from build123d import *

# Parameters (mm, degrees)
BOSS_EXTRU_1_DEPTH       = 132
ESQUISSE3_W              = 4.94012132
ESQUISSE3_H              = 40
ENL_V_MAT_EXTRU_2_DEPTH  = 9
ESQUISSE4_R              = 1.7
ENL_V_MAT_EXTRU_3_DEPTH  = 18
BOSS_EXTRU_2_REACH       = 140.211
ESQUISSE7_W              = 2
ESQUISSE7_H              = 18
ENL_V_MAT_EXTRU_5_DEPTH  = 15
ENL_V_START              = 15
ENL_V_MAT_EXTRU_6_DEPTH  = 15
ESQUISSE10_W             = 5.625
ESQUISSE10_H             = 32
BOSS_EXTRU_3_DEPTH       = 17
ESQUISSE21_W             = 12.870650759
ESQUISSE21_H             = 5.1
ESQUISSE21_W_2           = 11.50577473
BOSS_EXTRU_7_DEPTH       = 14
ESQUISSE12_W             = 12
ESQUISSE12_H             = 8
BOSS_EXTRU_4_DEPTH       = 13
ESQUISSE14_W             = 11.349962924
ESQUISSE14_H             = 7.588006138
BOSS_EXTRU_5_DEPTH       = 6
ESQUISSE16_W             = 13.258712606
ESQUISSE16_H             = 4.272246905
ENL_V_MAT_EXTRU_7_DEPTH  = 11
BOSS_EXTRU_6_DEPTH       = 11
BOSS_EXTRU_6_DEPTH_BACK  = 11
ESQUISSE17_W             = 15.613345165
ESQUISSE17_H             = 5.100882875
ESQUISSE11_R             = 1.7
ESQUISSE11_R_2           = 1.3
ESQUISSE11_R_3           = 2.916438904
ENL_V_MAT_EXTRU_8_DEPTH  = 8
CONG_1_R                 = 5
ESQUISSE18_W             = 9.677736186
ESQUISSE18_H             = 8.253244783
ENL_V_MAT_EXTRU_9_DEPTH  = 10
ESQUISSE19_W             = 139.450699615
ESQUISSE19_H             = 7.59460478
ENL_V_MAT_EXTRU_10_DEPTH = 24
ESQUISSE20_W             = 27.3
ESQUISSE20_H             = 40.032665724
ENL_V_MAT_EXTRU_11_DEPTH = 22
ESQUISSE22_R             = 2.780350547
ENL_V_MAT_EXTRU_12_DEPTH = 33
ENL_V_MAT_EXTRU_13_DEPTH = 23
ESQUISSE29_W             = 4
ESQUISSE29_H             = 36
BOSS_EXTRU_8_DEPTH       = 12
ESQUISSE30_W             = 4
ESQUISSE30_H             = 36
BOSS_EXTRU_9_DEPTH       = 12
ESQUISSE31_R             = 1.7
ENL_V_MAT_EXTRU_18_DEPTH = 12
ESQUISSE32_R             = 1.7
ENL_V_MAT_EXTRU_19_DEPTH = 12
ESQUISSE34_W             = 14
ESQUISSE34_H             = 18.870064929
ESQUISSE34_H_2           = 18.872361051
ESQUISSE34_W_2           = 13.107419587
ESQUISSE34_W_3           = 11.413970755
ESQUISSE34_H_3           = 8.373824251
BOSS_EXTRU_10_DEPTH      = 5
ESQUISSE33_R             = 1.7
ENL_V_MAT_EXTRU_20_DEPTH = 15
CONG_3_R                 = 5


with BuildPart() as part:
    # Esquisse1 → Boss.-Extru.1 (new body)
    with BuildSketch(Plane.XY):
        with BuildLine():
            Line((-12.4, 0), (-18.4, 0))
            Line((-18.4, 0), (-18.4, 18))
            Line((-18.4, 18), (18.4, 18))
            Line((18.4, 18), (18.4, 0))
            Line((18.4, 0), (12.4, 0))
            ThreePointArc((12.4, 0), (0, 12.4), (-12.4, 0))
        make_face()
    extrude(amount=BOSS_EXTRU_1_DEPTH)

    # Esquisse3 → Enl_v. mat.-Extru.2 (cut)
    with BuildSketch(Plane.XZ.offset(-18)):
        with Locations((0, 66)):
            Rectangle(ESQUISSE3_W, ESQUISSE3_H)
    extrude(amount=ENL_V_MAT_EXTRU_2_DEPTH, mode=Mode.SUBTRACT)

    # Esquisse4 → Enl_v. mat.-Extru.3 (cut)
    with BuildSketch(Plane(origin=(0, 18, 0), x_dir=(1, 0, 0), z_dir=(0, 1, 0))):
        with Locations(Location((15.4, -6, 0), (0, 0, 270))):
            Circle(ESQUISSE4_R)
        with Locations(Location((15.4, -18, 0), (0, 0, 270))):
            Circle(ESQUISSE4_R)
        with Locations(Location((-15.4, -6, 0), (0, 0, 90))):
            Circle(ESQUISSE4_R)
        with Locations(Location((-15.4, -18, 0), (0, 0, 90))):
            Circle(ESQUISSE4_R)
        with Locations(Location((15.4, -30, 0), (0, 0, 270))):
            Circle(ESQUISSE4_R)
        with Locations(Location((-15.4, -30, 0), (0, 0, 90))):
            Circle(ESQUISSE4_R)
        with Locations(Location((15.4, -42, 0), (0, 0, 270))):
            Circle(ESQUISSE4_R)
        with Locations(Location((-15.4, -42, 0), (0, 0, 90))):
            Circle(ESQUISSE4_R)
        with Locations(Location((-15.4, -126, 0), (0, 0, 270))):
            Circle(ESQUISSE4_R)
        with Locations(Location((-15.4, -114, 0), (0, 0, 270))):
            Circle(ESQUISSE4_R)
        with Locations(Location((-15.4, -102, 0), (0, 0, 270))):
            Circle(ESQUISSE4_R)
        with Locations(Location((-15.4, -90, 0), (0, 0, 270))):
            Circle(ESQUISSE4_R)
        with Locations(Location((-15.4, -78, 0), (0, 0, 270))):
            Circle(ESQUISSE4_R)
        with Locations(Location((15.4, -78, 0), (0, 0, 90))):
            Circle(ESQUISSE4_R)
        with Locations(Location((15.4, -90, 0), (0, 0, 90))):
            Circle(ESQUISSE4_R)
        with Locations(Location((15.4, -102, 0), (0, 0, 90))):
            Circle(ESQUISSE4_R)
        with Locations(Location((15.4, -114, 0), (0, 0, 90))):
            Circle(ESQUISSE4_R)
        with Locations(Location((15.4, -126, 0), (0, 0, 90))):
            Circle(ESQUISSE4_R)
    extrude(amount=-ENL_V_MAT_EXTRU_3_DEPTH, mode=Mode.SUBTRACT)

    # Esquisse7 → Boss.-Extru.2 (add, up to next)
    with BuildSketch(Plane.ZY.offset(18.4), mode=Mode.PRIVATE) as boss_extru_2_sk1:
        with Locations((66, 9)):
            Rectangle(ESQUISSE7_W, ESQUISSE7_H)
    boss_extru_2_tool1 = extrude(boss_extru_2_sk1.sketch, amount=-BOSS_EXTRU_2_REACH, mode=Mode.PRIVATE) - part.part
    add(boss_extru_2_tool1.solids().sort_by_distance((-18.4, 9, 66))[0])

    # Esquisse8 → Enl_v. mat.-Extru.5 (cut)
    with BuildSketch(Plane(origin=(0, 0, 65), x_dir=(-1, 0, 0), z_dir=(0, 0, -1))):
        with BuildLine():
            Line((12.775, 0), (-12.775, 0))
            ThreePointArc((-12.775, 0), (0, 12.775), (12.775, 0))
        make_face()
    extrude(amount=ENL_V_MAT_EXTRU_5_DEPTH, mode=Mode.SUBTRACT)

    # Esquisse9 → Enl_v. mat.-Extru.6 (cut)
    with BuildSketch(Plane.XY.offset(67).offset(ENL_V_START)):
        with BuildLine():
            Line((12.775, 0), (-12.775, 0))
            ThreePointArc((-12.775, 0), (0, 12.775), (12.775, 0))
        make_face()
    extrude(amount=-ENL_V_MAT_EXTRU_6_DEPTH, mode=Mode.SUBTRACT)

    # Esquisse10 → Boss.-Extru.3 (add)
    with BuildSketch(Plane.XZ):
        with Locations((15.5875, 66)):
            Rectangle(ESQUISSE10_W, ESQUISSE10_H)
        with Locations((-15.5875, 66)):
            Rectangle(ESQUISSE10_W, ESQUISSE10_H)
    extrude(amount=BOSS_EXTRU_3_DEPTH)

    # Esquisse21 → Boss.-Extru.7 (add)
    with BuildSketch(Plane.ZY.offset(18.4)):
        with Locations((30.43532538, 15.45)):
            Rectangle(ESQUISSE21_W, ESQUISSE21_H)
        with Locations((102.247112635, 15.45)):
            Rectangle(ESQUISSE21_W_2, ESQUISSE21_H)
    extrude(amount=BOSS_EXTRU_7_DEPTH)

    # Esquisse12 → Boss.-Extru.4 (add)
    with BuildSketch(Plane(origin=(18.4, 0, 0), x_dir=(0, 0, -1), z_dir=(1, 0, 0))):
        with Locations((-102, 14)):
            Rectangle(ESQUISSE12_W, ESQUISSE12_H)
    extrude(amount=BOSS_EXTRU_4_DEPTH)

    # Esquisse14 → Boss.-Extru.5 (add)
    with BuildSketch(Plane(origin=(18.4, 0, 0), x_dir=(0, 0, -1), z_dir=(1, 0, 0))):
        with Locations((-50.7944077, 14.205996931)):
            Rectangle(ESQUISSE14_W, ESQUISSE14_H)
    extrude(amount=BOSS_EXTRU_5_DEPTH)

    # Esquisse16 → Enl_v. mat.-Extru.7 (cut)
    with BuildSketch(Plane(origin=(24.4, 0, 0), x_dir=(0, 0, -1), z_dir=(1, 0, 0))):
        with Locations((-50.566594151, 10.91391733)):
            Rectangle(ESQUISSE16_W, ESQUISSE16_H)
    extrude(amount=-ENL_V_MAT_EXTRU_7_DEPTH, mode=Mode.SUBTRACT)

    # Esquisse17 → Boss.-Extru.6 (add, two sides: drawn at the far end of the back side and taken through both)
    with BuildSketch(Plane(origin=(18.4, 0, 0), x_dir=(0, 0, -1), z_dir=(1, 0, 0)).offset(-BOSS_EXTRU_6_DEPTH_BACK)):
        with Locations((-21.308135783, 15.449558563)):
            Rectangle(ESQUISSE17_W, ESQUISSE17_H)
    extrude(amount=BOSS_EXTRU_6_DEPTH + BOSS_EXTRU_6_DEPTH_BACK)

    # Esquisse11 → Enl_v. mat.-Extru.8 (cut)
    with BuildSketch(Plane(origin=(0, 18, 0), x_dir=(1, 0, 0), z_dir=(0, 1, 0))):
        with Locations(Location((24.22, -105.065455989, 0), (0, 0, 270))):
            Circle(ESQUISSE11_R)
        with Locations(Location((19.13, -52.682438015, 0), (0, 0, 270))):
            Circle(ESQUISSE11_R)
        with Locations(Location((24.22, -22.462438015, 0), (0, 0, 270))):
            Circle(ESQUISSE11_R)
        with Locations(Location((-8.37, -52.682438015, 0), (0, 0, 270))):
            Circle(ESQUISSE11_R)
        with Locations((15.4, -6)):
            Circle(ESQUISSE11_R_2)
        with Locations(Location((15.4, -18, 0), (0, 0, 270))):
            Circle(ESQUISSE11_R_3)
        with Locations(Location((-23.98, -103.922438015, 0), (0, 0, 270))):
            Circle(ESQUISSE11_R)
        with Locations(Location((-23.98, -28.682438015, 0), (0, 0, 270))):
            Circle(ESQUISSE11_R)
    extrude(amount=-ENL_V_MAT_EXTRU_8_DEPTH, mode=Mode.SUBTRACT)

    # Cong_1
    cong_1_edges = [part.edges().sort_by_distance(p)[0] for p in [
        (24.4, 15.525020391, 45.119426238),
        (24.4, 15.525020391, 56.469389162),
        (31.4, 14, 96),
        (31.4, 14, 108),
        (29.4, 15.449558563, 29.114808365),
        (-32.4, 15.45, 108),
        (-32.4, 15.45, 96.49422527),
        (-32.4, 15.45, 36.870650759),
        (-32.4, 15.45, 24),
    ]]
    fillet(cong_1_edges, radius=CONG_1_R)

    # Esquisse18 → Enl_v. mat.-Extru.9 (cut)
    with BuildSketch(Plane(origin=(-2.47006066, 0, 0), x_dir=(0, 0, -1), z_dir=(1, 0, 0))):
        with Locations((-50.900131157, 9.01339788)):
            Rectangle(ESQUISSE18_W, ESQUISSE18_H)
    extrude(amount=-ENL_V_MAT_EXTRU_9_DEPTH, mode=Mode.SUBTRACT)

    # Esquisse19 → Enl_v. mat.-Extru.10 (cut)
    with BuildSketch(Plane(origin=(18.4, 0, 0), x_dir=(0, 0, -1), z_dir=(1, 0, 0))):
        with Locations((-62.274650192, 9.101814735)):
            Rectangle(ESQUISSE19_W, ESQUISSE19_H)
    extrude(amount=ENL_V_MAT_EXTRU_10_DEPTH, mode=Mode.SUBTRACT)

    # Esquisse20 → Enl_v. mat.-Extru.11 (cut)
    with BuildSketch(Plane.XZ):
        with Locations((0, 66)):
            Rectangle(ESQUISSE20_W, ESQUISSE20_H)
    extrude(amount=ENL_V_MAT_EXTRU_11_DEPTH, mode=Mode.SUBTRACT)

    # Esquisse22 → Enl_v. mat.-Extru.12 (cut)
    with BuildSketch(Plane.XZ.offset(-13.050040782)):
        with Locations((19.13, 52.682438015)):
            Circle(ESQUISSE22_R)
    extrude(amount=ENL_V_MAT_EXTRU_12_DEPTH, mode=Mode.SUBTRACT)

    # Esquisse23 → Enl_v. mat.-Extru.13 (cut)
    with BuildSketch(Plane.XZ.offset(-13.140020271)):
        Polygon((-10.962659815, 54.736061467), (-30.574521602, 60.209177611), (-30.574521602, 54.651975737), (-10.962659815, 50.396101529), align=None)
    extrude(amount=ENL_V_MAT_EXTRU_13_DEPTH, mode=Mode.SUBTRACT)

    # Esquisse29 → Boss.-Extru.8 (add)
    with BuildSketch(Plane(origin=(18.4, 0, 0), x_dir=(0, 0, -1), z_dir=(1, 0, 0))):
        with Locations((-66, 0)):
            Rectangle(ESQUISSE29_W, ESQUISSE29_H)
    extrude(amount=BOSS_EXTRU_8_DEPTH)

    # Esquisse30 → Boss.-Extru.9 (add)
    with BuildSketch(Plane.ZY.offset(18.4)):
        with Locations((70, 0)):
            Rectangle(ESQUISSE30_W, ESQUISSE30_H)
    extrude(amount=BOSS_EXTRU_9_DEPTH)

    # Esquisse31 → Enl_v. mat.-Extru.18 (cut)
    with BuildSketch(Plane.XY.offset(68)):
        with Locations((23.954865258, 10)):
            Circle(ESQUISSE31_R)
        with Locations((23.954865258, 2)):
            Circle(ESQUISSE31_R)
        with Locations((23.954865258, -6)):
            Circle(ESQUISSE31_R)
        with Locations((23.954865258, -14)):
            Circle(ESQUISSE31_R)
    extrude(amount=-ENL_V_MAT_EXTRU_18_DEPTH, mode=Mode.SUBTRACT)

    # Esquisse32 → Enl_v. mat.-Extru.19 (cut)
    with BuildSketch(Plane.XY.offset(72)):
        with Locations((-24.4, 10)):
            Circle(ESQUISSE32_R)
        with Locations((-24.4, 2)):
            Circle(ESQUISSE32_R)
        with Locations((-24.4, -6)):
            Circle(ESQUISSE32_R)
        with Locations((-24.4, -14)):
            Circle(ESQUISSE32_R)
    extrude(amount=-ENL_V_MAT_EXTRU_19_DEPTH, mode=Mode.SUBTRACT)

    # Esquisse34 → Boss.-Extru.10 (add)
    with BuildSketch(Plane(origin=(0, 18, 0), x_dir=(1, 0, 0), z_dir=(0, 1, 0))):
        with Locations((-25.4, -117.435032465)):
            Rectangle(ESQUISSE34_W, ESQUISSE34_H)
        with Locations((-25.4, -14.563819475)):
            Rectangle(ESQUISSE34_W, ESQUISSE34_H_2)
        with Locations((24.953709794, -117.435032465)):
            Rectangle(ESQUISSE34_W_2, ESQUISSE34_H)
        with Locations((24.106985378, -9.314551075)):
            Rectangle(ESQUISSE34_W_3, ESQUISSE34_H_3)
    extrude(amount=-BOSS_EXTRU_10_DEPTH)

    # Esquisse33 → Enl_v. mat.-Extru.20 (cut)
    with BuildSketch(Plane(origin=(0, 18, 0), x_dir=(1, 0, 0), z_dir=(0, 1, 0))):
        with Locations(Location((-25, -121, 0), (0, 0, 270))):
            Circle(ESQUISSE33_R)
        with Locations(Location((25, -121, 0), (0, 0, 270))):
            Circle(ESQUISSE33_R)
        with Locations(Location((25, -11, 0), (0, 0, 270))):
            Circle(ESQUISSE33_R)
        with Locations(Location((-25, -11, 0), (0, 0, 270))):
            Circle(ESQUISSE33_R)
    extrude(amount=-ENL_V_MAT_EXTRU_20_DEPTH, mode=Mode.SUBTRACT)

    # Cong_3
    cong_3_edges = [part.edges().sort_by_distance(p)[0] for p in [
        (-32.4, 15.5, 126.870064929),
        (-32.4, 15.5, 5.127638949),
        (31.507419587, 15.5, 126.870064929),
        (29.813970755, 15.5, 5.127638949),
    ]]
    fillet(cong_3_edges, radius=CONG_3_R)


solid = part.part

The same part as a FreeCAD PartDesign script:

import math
import FreeCAD as App
import Part
import Sketcher
Q = App.Units.Quantity


def edges_at(feature, points):
    """Names of the edges that pass closest to the given points."""
    edges = feature.Shape.Edges
    near = lambda p: min(range(len(edges)), key=lambda i: edges[i].distToShape(Part.Vertex(*p))[0])
    return sorted({f"Edge{near(p) + 1}" for p in points})

doc = App.newDocument("Part")
body = doc.addObject("PartDesign::Body", "Body")

# Sketch on XY plane
sketch1 = body.newObject("Sketcher::SketchObject", "Sketch")
sketch1.AttachmentSupport = (doc.getObject("XY_Plane"), [""])
sketch1.MapMode = "FlatFace"
sketch1.addGeometry([
    Part.LineSegment(App.Vector(-18, 0, 0), App.Vector(-12, 0, 0)),  # 0
    Part.ArcOfCircle(Part.Circle(App.Vector(0, 0, 0), App.Vector(0, 0, 1), 12), math.radians(0), math.radians(180)),  # 1
    Part.LineSegment(App.Vector(12, 0, 0), App.Vector(18, 0, 0)),  # 2
    Part.LineSegment(App.Vector(18, 0, 0), App.Vector(18, 18, 0)),  # 3
    Part.LineSegment(App.Vector(18, 18, 0), App.Vector(-18, 18, 0)),  # 4
    Part.LineSegment(App.Vector(-18, 18, 0), App.Vector(-18, 0, 0)),  # 5
], False)
sketch1.addConstraint([
    Sketcher.Constraint("Coincident", 0, 2, 1, 2),
    Sketcher.Constraint("Coincident", 1, 1, 2, 1),
    Sketcher.Constraint("Coincident", 2, 2, 3, 1),
    Sketcher.Constraint("Coincident", 3, 2, 4, 1),
    Sketcher.Constraint("Coincident", 4, 2, 5, 1),
    Sketcher.Constraint("Coincident", 5, 2, 0, 1),
    Sketcher.Constraint("Horizontal", 0),
    Sketcher.Constraint("Horizontal", 2),
    Sketcher.Constraint("Vertical", 3),
    Sketcher.Constraint("Horizontal", 4),
    Sketcher.Constraint("Vertical", 5),
    Sketcher.Constraint("Coincident", 1, 3, -1, 1),
    Sketcher.Constraint("Symmetric", 2, 2, 5, 2, -1, 1),
    Sketcher.Constraint("PointOnObject", 0, 2, -1),
    Sketcher.Constraint("Radius", 1, Q("12.4 mm")),
    Sketcher.Constraint("DistanceX", 0, 1, 0, 2, Q("6 mm")),
    Sketcher.Constraint("DistanceY", 3, 1, 3, 2, Q("18 mm")),
])
pad1 = body.newObject("PartDesign::Pad", "Pad")
pad1.Profile = sketch1
pad1.Length = 132

# Sketch on XZ plane
sketch2 = body.newObject("Sketcher::SketchObject", "Sketch001")
sketch2.AttachmentSupport = (doc.getObject("XZ_Plane"), [""])
sketch2.MapMode = "FlatFace"
sketch2.AttachmentOffset = App.Placement(App.Vector(0, 0, -18), App.Rotation())
sketch2.addGeometry([
    Part.LineSegment(App.Vector(-2.5, 86, 0), App.Vector(-2.5, 46, 0)),
    Part.LineSegment(App.Vector(-2.5, 46, 0), App.Vector(2.5, 46, 0)),
    Part.LineSegment(App.Vector(2.5, 46, 0), App.Vector(2.5, 86, 0)),
    Part.LineSegment(App.Vector(2.5, 86, 0), App.Vector(-2.5, 86, 0)),
], False)
sketch2.addConstraint([
    Sketcher.Constraint("Coincident", 0, 2, 1, 1),
    Sketcher.Constraint("Coincident", 1, 2, 2, 1),
    Sketcher.Constraint("Coincident", 2, 2, 3, 1),
    Sketcher.Constraint("Coincident", 3, 2, 0, 1),
    Sketcher.Constraint("Vertical", 0),
    Sketcher.Constraint("Horizontal", 1),
    Sketcher.Constraint("Vertical", 2),
    Sketcher.Constraint("Horizontal", 3),
    Sketcher.Constraint("DistanceY", 0, 2, 0, 1, Q("40 mm")),
    Sketcher.Constraint("DistanceY", -1, 1, 0, 2, Q("46 mm")),
    Sketcher.Constraint("DistanceX", 1, 1, 1, 2, Q("4.940121 mm")),
    Sketcher.Constraint("DistanceX", 0, 2, -1, 1, Q("2.470061 mm")),
])
pocket1 = body.newObject("PartDesign::Pocket", "Pocket")
pocket1.Profile = sketch2
pocket1.Length = 9
pocket1.Reversed = True

# Sketch on XZ plane
sketch3 = body.newObject("Sketcher::SketchObject", "Sketch002")
sketch3.AttachmentSupport = (doc.getObject("XZ_Plane"), [""])
sketch3.MapMode = "FlatFace"
sketch3.AttachmentOffset = App.Placement(App.Vector(0, 0, -18), App.Rotation())
sketch3.addGeometry([
    Part.Circle(App.Vector(15.4, 6, 0), App.Vector(0, 0, 1), 1.7),  # 0
    Part.Circle(App.Vector(15.4, 18, 0), App.Vector(0, 0, 1), 1.7),  # 1
    Part.Circle(App.Vector(-15.4, 6, 0), App.Vector(0, 0, 1), 1.7),  # 2
    Part.Circle(App.Vector(-15.4, 18, 0), App.Vector(0, 0, 1), 1.7),  # 3
    Part.Circle(App.Vector(15.4, 30, 0), App.Vector(0, 0, 1), 1.7),  # 4
    Part.Circle(App.Vector(-15.4, 30, 0), App.Vector(0, 0, 1), 1.7),  # 5
    Part.Circle(App.Vector(15.4, 42, 0), App.Vector(0, 0, 1), 1.7),  # 6
    Part.Circle(App.Vector(-15.4, 42, 0), App.Vector(0, 0, 1), 1.7),  # 7
    Part.Circle(App.Vector(-15.4, 126, 0), App.Vector(0, 0, 1), 1.7),  # 8
    Part.Circle(App.Vector(-15.4, 114, 0), App.Vector(0, 0, 1), 1.7),  # 9
    Part.Circle(App.Vector(-15.4, 102, 0), App.Vector(0, 0, 1), 1.7),  # 10
    Part.Circle(App.Vector(-15.4, 90, 0), App.Vector(0, 0, 1), 1.7),  # 11
    Part.Circle(App.Vector(-15.4, 78, 0), App.Vector(0, 0, 1), 1.7),  # 12
    Part.Circle(App.Vector(15.4, 78, 0), App.Vector(0, 0, 1), 1.7),  # 13
    Part.Circle(App.Vector(15.4, 90, 0), App.Vector(0, 0, 1), 1.7),  # 14
    Part.Circle(App.Vector(15.4, 102, 0), App.Vector(0, 0, 1), 1.7),  # 15
    Part.Circle(App.Vector(15.4, 114, 0), App.Vector(0, 0, 1), 1.7),  # 16
    Part.Circle(App.Vector(15.4, 126, 0), App.Vector(0, 0, 1), 1.7),  # 17
], False)
sketch3.addConstraint([
    Sketcher.Constraint("Equal", 0, 1),
    Sketcher.Constraint("Equal", 1, 2),
    Sketcher.Constraint("Equal", 2, 3),
    Sketcher.Constraint("Equal", 3, 4),
    Sketcher.Constraint("Equal", 4, 5),
    Sketcher.Constraint("Equal", 5, 6),
    Sketcher.Constraint("Equal", 6, 7),
    Sketcher.Constraint("Equal", 7, 8),
    Sketcher.Constraint("Equal", 8, 9),
    Sketcher.Constraint("Equal", 9, 10),
    Sketcher.Constraint("Equal", 10, 11),
    Sketcher.Constraint("Equal", 11, 12),
    Sketcher.Constraint("Equal", 12, 13),
    Sketcher.Constraint("Equal", 13, 14),
    Sketcher.Constraint("Equal", 14, 15),
    Sketcher.Constraint("Equal", 15, 16),
    Sketcher.Constraint("Equal", 16, 17),
    Sketcher.Constraint("Symmetric", 0, 3, 2, 3, -2),
    Sketcher.Constraint("Symmetric", 1, 3, 3, 3, -2),
    Sketcher.Constraint("Symmetric", 4, 3, 5, 3, -2),
    Sketcher.Constraint("Symmetric", 6, 3, 7, 3, -2),
    Sketcher.Constraint("Symmetric", 12, 3, 13, 3, -2),
    Sketcher.Constraint("Symmetric", 11, 3, 14, 3, -2),
    Sketcher.Constraint("Symmetric", 10, 3, 15, 3, -2),
    Sketcher.Constraint("Symmetric", 9, 3, 16, 3, -2),
    Sketcher.Constraint("Symmetric", 8, 3, 17, 3, -2),
    Sketcher.Constraint("Vertical", 0, 3, 1, 3),
    Sketcher.Constraint("Vertical", 1, 3, 4, 3),
    Sketcher.Constraint("Vertical", 4, 3, 6, 3),
    Sketcher.Constraint("Vertical", 7, 3, 8, 3),
    Sketcher.Constraint("Vertical", 8, 3, 9, 3),
    Sketcher.Constraint("Vertical", 9, 3, 10, 3),
    Sketcher.Constraint("Vertical", 10, 3, 11, 3),
    Sketcher.Constraint("Vertical", 11, 3, 12, 3),
    Sketcher.Constraint("Diameter", 0, Q("3.4 mm")),
    Sketcher.Constraint("DistanceY", -1, 1, 0, 3, Q("6 mm")),
    Sketcher.Constraint("DistanceY", -1, 1, 1, 3, Q("18 mm")),
    Sketcher.Constraint("DistanceY", -1, 1, 4, 3, Q("30 mm")),
    Sketcher.Constraint("DistanceY", -1, 1, 6, 3, Q("42 mm")),
    Sketcher.Constraint("DistanceY", -1, 1, 8, 3, Q("126 mm")),
    Sketcher.Constraint("DistanceY", -1, 1, 9, 3, Q("114 mm")),
    Sketcher.Constraint("DistanceY", -1, 1, 10, 3, Q("102 mm")),
    Sketcher.Constraint("DistanceY", -1, 1, 11, 3, Q("90 mm")),
    Sketcher.Constraint("DistanceY", -1, 1, 12, 3, Q("78 mm")),
    Sketcher.Constraint("DistanceX", -1, 1, 0, 3, Q("15.4 mm")),
])
pocket2 = body.newObject("PartDesign::Pocket", "Pocket001")
pocket2.Profile = sketch3
pocket2.Length = 18
pocket2.Reversed = True

# Sketch on YZ plane
sketch4 = body.newObject("Sketcher::SketchObject", "Sketch003")
sketch4.AttachmentSupport = (doc.getObject("YZ_Plane"), [""])
sketch4.MapMode = "FlatFace"
sketch4.AttachmentOffset = App.Placement(App.Vector(0, 0, -18.4), App.Rotation())
sketch4.addGeometry([
    Part.LineSegment(App.Vector(18, 65, 0), App.Vector(0, 65, 0)),
    Part.LineSegment(App.Vector(0, 65, 0), App.Vector(0, 67, 0)),
    Part.LineSegment(App.Vector(0, 67, 0), App.Vector(18, 67, 0)),
    Part.LineSegment(App.Vector(18, 67, 0), App.Vector(18, 65, 0)),
], False)
sketch4.addConstraint([
    Sketcher.Constraint("Coincident", 0, 2, 1, 1),
    Sketcher.Constraint("Coincident", 1, 2, 2, 1),
    Sketcher.Constraint("Coincident", 2, 2, 3, 1),
    Sketcher.Constraint("Coincident", 3, 2, 0, 1),
    Sketcher.Constraint("Horizontal", 0),
    Sketcher.Constraint("Vertical", 1),
    Sketcher.Constraint("Horizontal", 2),
    Sketcher.Constraint("Vertical", 3),
    Sketcher.Constraint("PointOnObject", 0, 2, -2),
    Sketcher.Constraint("DistanceX", 0, 2, 0, 1, Q("18 mm")),
    Sketcher.Constraint("DistanceY", 1, 1, 1, 2, Q("2 mm")),
    Sketcher.Constraint("DistanceY", -1, 1, 0, 2, Q("65 mm")),
])
pad2 = body.newObject("PartDesign::Pad", "Pad001")
pad2.Profile = sketch4
pad2.Type = "UpToFirst"

# Sketch on XY plane
sketch5 = body.newObject("Sketcher::SketchObject", "Sketch004")
sketch5.AttachmentSupport = (doc.getObject("XY_Plane"), [""])
sketch5.MapMode = "FlatFace"
sketch5.AttachmentOffset = App.Placement(App.Vector(0, 0, 65), App.Rotation())
sketch5.addGeometry([
    Part.LineSegment(App.Vector(13, 0, 0), App.Vector(-13, 0, 0)),
    Part.ArcOfCircle(Part.Circle(App.Vector(0, 0, 0), App.Vector(0, 0, 1), 13), math.radians(0), math.radians(180)),
], False)
sketch5.addConstraint([
    Sketcher.Constraint("Coincident", 0, 1, 1, 1),
    Sketcher.Constraint("Coincident", 1, 2, 0, 2),
    Sketcher.Constraint("Horizontal", 0),
    Sketcher.Constraint("Coincident", 1, 3, -1, 1),
    Sketcher.Constraint("PointOnObject", 0, 1, -1),
    Sketcher.Constraint("Radius", 1, Q("12.775 mm")),
])
pocket3 = body.newObject("PartDesign::Pocket", "Pocket002")
pocket3.Profile = sketch5
pocket3.Length = 15

# Sketch on XY plane
sketch6 = body.newObject("Sketcher::SketchObject", "Sketch005")
sketch6.AttachmentSupport = (doc.getObject("XY_Plane"), [""])
sketch6.MapMode = "FlatFace"
sketch6.AttachmentOffset = App.Placement(App.Vector(0, 0, 82), App.Rotation())
sketch6.addGeometry([
    Part.LineSegment(App.Vector(-13, 0, 0), App.Vector(13, 0, 0)),
    Part.ArcOfCircle(Part.Circle(App.Vector(0, 0, 0), App.Vector(0, 0, 1), 13), math.radians(0), math.radians(180)),
], False)
sketch6.addConstraint([
    Sketcher.Constraint("Coincident", 0, 1, 1, 2),
    Sketcher.Constraint("Coincident", 1, 1, 0, 2),
    Sketcher.Constraint("Horizontal", 0),
    Sketcher.Constraint("Coincident", 1, 3, -1, 1),
    Sketcher.Constraint("PointOnObject", 0, 1, -1),
    Sketcher.Constraint("Radius", 1, Q("12.775 mm")),
])
pocket4 = body.newObject("PartDesign::Pocket", "Pocket003")
pocket4.Profile = sketch6
pocket4.Length = 15

# Sketch on XZ plane
sketch7 = body.newObject("Sketcher::SketchObject", "Sketch006")
sketch7.AttachmentSupport = (doc.getObject("XZ_Plane"), [""])
sketch7.MapMode = "FlatFace"
sketch7.addGeometry([
    Part.LineSegment(App.Vector(13, 82, 0), App.Vector(13, 50, 0)),  # 0
    Part.LineSegment(App.Vector(13, 50, 0), App.Vector(18, 50, 0)),  # 1
    Part.LineSegment(App.Vector(18, 50, 0), App.Vector(18, 82, 0)),  # 2
    Part.LineSegment(App.Vector(18, 82, 0), App.Vector(13, 82, 0)),  # 3
    Part.LineSegment(App.Vector(-18, 82, 0), App.Vector(-18, 50, 0)),  # 4
    Part.LineSegment(App.Vector(-18, 50, 0), App.Vector(-13, 50, 0)),  # 5
    Part.LineSegment(App.Vector(-13, 50, 0), App.Vector(-13, 82, 0)),  # 6
    Part.LineSegment(App.Vector(-13, 82, 0), App.Vector(-18, 82, 0)),  # 7
], False)
sketch7.addConstraint([
    Sketcher.Constraint("Coincident", 0, 2, 1, 1),
    Sketcher.Constraint("Coincident", 1, 2, 2, 1),
    Sketcher.Constraint("Coincident", 2, 2, 3, 1),
    Sketcher.Constraint("Coincident", 3, 2, 0, 1),
    Sketcher.Constraint("Coincident", 4, 2, 5, 1),
    Sketcher.Constraint("Coincident", 5, 2, 6, 1),
    Sketcher.Constraint("Coincident", 6, 2, 7, 1),
    Sketcher.Constraint("Coincident", 7, 2, 4, 1),
    Sketcher.Constraint("Vertical", 0),
    Sketcher.Constraint("Horizontal", 1),
    Sketcher.Constraint("Vertical", 2),
    Sketcher.Constraint("Horizontal", 3),
    Sketcher.Constraint("Vertical", 4),
    Sketcher.Constraint("Horizontal", 5),
    Sketcher.Constraint("Vertical", 6),
    Sketcher.Constraint("Horizontal", 7),
    Sketcher.Constraint("Symmetric", 1, 2, 4, 2, -2),
    Sketcher.Constraint("Symmetric", 3, 2, 6, 2, -2),
    Sketcher.Constraint("DistanceY", 0, 2, 0, 1, Q("32 mm")),
    Sketcher.Constraint("DistanceY", -1, 1, 0, 2, Q("50 mm")),
    Sketcher.Constraint("DistanceX", -1, 1, 1, 2, Q("18.4 mm")),
    Sketcher.Constraint("DistanceX", 1, 1, 1, 2, Q("5.625 mm")),
])
pad3 = body.newObject("PartDesign::Pad", "Pad002")
pad3.Profile = sketch7
pad3.Length = 17

# Sketch on YZ plane
sketch8 = body.newObject("Sketcher::SketchObject", "Sketch007")
sketch8.AttachmentSupport = (doc.getObject("YZ_Plane"), [""])
sketch8.MapMode = "FlatFace"
sketch8.AttachmentOffset = App.Placement(App.Vector(0, 0, -18.4), App.Rotation())
sketch8.addGeometry([
    Part.LineSegment(App.Vector(18, 24, 0), App.Vector(13, 24, 0)),  # 0
    Part.LineSegment(App.Vector(13, 24, 0), App.Vector(13, 37, 0)),  # 1
    Part.LineSegment(App.Vector(13, 37, 0), App.Vector(18, 37, 0)),  # 2
    Part.LineSegment(App.Vector(18, 37, 0), App.Vector(18, 24, 0)),  # 3
    Part.LineSegment(App.Vector(18, 96, 0), App.Vector(13, 96, 0)),  # 4
    Part.LineSegment(App.Vector(13, 96, 0), App.Vector(13, 108, 0)),  # 5
    Part.LineSegment(App.Vector(13, 108, 0), App.Vector(18, 108, 0)),  # 6
    Part.LineSegment(App.Vector(18, 108, 0), App.Vector(18, 96, 0)),  # 7
], False)
sketch8.addConstraint([
    Sketcher.Constraint("Coincident", 0, 2, 1, 1),
    Sketcher.Constraint("Coincident", 1, 2, 2, 1),
    Sketcher.Constraint("Coincident", 2, 2, 3, 1),
    Sketcher.Constraint("Coincident", 3, 2, 0, 1),
    Sketcher.Constraint("Coincident", 4, 2, 5, 1),
    Sketcher.Constraint("Coincident", 5, 2, 6, 1),
    Sketcher.Constraint("Coincident", 6, 2, 7, 1),
    Sketcher.Constraint("Coincident", 7, 2, 4, 1),
    Sketcher.Constraint("Horizontal", 0),
    Sketcher.Constraint("Vertical", 1),
    Sketcher.Constraint("Horizontal", 2),
    Sketcher.Constraint("Vertical", 3),
    Sketcher.Constraint("Horizontal", 4),
    Sketcher.Constraint("Vertical", 5),
    Sketcher.Constraint("Horizontal", 6),
    Sketcher.Constraint("Vertical", 7),
    Sketcher.Constraint("Vertical", 1, 2, 4, 2),
    Sketcher.Constraint("Vertical", 3, 2, 6, 2),
    Sketcher.Constraint("DistanceX", 0, 2, 0, 1, Q("5.1 mm")),
    Sketcher.Constraint("DistanceY", -1, 1, 0, 2, Q("24 mm")),
    Sketcher.Constraint("DistanceX", -1, 1, 2, 2, Q("18 mm")),
    Sketcher.Constraint("DistanceY", -1, 1, 5, 2, Q("108 mm")),
    Sketcher.Constraint("DistanceY", 1, 1, 1, 2, Q("12.870651 mm")),
    Sketcher.Constraint("DistanceY", 5, 1, 5, 2, Q("11.505775 mm")),
])
pad4 = body.newObject("PartDesign::Pad", "Pad003")
pad4.Profile = sketch8
pad4.Length = 14
pad4.Reversed = True

# Sketch on YZ plane
sketch9 = body.newObject("Sketcher::SketchObject", "Sketch008")
sketch9.AttachmentSupport = (doc.getObject("YZ_Plane"), [""])
sketch9.MapMode = "FlatFace"
sketch9.AttachmentOffset = App.Placement(App.Vector(0, 0, 18.4), App.Rotation())
sketch9.addGeometry([
    Part.LineSegment(App.Vector(18, 108, 0), App.Vector(10, 108, 0)),
    Part.LineSegment(App.Vector(10, 108, 0), App.Vector(10, 96, 0)),
    Part.LineSegment(App.Vector(10, 96, 0), App.Vector(18, 96, 0)),
    Part.LineSegment(App.Vector(18, 96, 0), App.Vector(18, 108, 0)),
], False)
sketch9.addConstraint([
    Sketcher.Constraint("Coincident", 0, 2, 1, 1),
    Sketcher.Constraint("Coincident", 1, 2, 2, 1),
    Sketcher.Constraint("Coincident", 2, 2, 3, 1),
    Sketcher.Constraint("Coincident", 3, 2, 0, 1),
    Sketcher.Constraint("Horizontal", 0),
    Sketcher.Constraint("Vertical", 1),
    Sketcher.Constraint("Horizontal", 2),
    Sketcher.Constraint("Vertical", 3),
    Sketcher.Constraint("DistanceX", 0, 2, 0, 1, Q("8 mm")),
    Sketcher.Constraint("DistanceY", 1, 2, 1, 1, Q("12 mm")),
    Sketcher.Constraint("DistanceX", -1, 1, 0, 2, Q("10 mm")),
    Sketcher.Constraint("DistanceY", -1, 1, 0, 2, Q("108 mm")),
])
pad5 = body.newObject("PartDesign::Pad", "Pad004")
pad5.Profile = sketch9
pad5.Length = 13

# Sketch on YZ plane
sketch10 = body.newObject("Sketcher::SketchObject", "Sketch009")
sketch10.AttachmentSupport = (doc.getObject("YZ_Plane"), [""])
sketch10.MapMode = "FlatFace"
sketch10.AttachmentOffset = App.Placement(App.Vector(0, 0, 18.4), App.Rotation())
sketch10.addGeometry([
    Part.LineSegment(App.Vector(18, 56, 0), App.Vector(10, 56, 0)),
    Part.LineSegment(App.Vector(10, 56, 0), App.Vector(10, 45, 0)),
    Part.LineSegment(App.Vector(10, 45, 0), App.Vector(18, 45, 0)),
    Part.LineSegment(App.Vector(18, 45, 0), App.Vector(18, 56, 0)),
], False)
sketch10.addConstraint([
    Sketcher.Constraint("Coincident", 0, 2, 1, 1),
    Sketcher.Constraint("Coincident", 1, 2, 2, 1),
    Sketcher.Constraint("Coincident", 2, 2, 3, 1),
    Sketcher.Constraint("Coincident", 3, 2, 0, 1),
    Sketcher.Constraint("Horizontal", 0),
    Sketcher.Constraint("Vertical", 1),
    Sketcher.Constraint("Horizontal", 2),
    Sketcher.Constraint("Vertical", 3),
    Sketcher.Constraint("DistanceX", -1, 1, 2, 2, Q("18 mm")),
    Sketcher.Constraint("DistanceX", 0, 2, 0, 1, Q("7.588006 mm")),
    Sketcher.Constraint("DistanceY", 1, 2, 1, 1, Q("11.349963 mm")),
    Sketcher.Constraint("DistanceY", -1, 1, 0, 2, Q("56.469389 mm")),
])
pad6 = body.newObject("PartDesign::Pad", "Pad005")
pad6.Profile = sketch10
pad6.Length = 6

# Sketch on YZ plane
sketch11 = body.newObject("Sketcher::SketchObject", "Sketch010")
sketch11.AttachmentSupport = (doc.getObject("YZ_Plane"), [""])
sketch11.MapMode = "FlatFace"
sketch11.AttachmentOffset = App.Placement(App.Vector(0, 0, 24.4), App.Rotation())
sketch11.addGeometry([
    Part.LineSegment(App.Vector(13.1, 57.2, 0), App.Vector(8.8, 57.2, 0)),
    Part.LineSegment(App.Vector(8.8, 57.2, 0), App.Vector(8.8, 43.9, 0)),
    Part.LineSegment(App.Vector(8.8, 43.9, 0), App.Vector(13.1, 43.9, 0)),
    Part.LineSegment(App.Vector(13.1, 43.9, 0), App.Vector(13.1, 57.2, 0)),
], False)
sketch11.addConstraint([
    Sketcher.Constraint("Coincident", 0, 2, 1, 1),
    Sketcher.Constraint("Coincident", 1, 2, 2, 1),
    Sketcher.Constraint("Coincident", 2, 2, 3, 1),
    Sketcher.Constraint("Coincident", 3, 2, 0, 1),
    Sketcher.Constraint("Horizontal", 0),
    Sketcher.Constraint("Vertical", 1),
    Sketcher.Constraint("Horizontal", 2),
    Sketcher.Constraint("Vertical", 3),
    Sketcher.Constraint("DistanceX", 0, 2, 0, 1, Q("4.272247 mm")),
    Sketcher.Constraint("DistanceY", 1, 2, 1, 1, Q("13.258713 mm")),
    Sketcher.Constraint("DistanceY", -1, 1, 0, 2, Q("57.19595 mm")),
    Sketcher.Constraint("DistanceX", -1, 1, 2, 2, Q("13.050041 mm")),
])
pocket5 = body.newObject("PartDesign::Pocket", "Pocket004")
pocket5.Profile = sketch11
pocket5.Length = 11

# Sketch on YZ plane
sketch12 = body.newObject("Sketcher::SketchObject", "Sketch011")
sketch12.AttachmentSupport = (doc.getObject("YZ_Plane"), [""])
sketch12.MapMode = "FlatFace"
sketch12.AttachmentOffset = App.Placement(App.Vector(0, 0, 18.4), App.Rotation())
sketch12.addGeometry([
    Part.LineSegment(App.Vector(18, 29, 0), App.Vector(13, 29, 0)),
    Part.LineSegment(App.Vector(13, 29, 0), App.Vector(13, 14, 0)),
    Part.LineSegment(App.Vector(13, 14, 0), App.Vector(18, 14, 0)),
    Part.LineSegment(App.Vector(18, 14, 0), App.Vector(18, 29, 0)),
], False)
sketch12.addConstraint([
    Sketcher.Constraint("Coincident", 0, 2, 1, 1),
    Sketcher.Constraint("Coincident", 1, 2, 2, 1),
    Sketcher.Constraint("Coincident", 2, 2, 3, 1),
    Sketcher.Constraint("Coincident", 3, 2, 0, 1),
    Sketcher.Constraint("Horizontal", 0),
    Sketcher.Constraint("Vertical", 1),
    Sketcher.Constraint("Horizontal", 2),
    Sketcher.Constraint("Vertical", 3),
    Sketcher.Constraint("DistanceX", -1, 1, 2, 2, Q("18 mm")),
    Sketcher.Constraint("DistanceX", 0, 2, 0, 1, Q("5.100883 mm")),
    Sketcher.Constraint("DistanceY", 1, 2, 1, 1, Q("15.613345 mm")),
    Sketcher.Constraint("DistanceY", -1, 1, 0, 2, Q("29.114808 mm")),
])
pad7 = body.newObject("PartDesign::Pad", "Pad006")
pad7.Profile = sketch12
pad7.Type = "TwoLengths"
pad7.Length = 11
pad7.Length2 = 11

# Sketch on XZ plane
sketch13 = body.newObject("Sketcher::SketchObject", "Sketch012")
sketch13.AttachmentSupport = (doc.getObject("XZ_Plane"), [""])
sketch13.MapMode = "FlatFace"
sketch13.AttachmentOffset = App.Placement(App.Vector(0, 0, -18), App.Rotation())
sketch13.addGeometry([
    Part.Circle(App.Vector(24.2, 105.1, 0), App.Vector(0, 0, 1), 1.7),  # 0
    Part.Circle(App.Vector(19.1, 52.7, 0), App.Vector(0, 0, 1), 1.7),  # 1
    Part.Circle(App.Vector(24.2, 22.5, 0), App.Vector(0, 0, 1), 1.7),  # 2
    Part.Circle(App.Vector(-8.4, 52.7, 0), App.Vector(0, 0, 1), 1.7),  # 3
    Part.Circle(App.Vector(15.4, 6, 0), App.Vector(0, 0, 1), 1.3),  # 4
    Part.Circle(App.Vector(15.4, 18, 0), App.Vector(0, 0, 1), 2.9),  # 5
    Part.Circle(App.Vector(-24, 103.9, 0), App.Vector(0, 0, 1), 1.7),  # 6
    Part.Circle(App.Vector(-24, 28.7, 0), App.Vector(0, 0, 1), 1.7),  # 7
], False)
sketch13.addConstraint([
    Sketcher.Constraint("Equal", 0, 1),
    Sketcher.Constraint("Equal", 1, 2),
    Sketcher.Constraint("Equal", 2, 3),
    Sketcher.Constraint("Equal", 3, 6),
    Sketcher.Constraint("Equal", 6, 7),
    Sketcher.Constraint("Horizontal", 1, 3, 3, 3),
    Sketcher.Constraint("Vertical", 0, 3, 2, 3),
    Sketcher.Constraint("Vertical", 4, 3, 5, 3),
    Sketcher.Constraint("Vertical", 6, 3, 7, 3),
    Sketcher.Constraint("Diameter", 0, Q("3.4 mm")),
    Sketcher.Constraint("Diameter", 4, Q("2.6 mm")),
    Sketcher.Constraint("DistanceY", -1, 1, 4, 3, Q("6 mm")),
    Sketcher.Constraint("DistanceY", -1, 1, 5, 3, Q("18 mm")),
    Sketcher.Constraint("DistanceY", 7, 3, 3, 3, Q("24 mm")),
    Sketcher.Constraint("DistanceX", -1, 1, 4, 3, Q("15.4 mm")),
    Sketcher.Constraint("DistanceX", 3, 3, 1, 3, Q("27.5 mm")),
    Sketcher.Constraint("DistanceX", 6, 3, 0, 3, Q("48.2 mm")),
    Sketcher.Constraint("DistanceX", -1, 1, 0, 3, Q("24.22 mm")),
    Sketcher.Constraint("DistanceX", -1, 1, 1, 3, Q("19.13 mm")),
    Sketcher.Constraint("DistanceY", 2, 3, 1, 3, Q("30.22 mm")),
    Sketcher.Constraint("DistanceY", 3, 3, 6, 3, Q("51.24 mm")),
    Sketcher.Constraint("Diameter", 5, Q("5.832878 mm")),
    Sketcher.Constraint("DistanceY", -1, 1, 1, 3, Q("52.682438 mm")),
    Sketcher.Constraint("DistanceY", -1, 1, 0, 3, Q("105.065456 mm")),
])
pocket6 = body.newObject("PartDesign::Pocket", "Pocket005")
pocket6.Profile = sketch13
pocket6.Length = 8
pocket6.Reversed = True
doc.recompute()

fillet = body.newObject("PartDesign::Fillet", "Fillet")
fillet.Base = (pocket6, edges_at(pocket6, [
    (24.4, 15.525, 45.119),
    (24.4, 15.525, 56.469),
    (31.4, 14, 96),
    (31.4, 14, 108),
    (29.4, 15.45, 29.115),
    (-32.4, 15.45, 108),
    (-32.4, 15.45, 96.494),
    (-32.4, 15.45, 36.871),
    (-32.4, 15.45, 24),
]))
fillet.Radius = 5

# Sketch on YZ plane
sketch14 = body.newObject("Sketcher::SketchObject", "Sketch013")
sketch14.AttachmentSupport = (doc.getObject("YZ_Plane"), [""])
sketch14.MapMode = "FlatFace"
sketch14.AttachmentOffset = App.Placement(App.Vector(0, 0, -2.470061), App.Rotation())
sketch14.addGeometry([
    Part.LineSegment(App.Vector(13, 56, 0), App.Vector(5, 56, 0)),
    Part.LineSegment(App.Vector(5, 56, 0), App.Vector(5, 46, 0)),
    Part.LineSegment(App.Vector(5, 46, 0), App.Vector(13, 46, 0)),
    Part.LineSegment(App.Vector(13, 46, 0), App.Vector(13, 56, 0)),
], False)
sketch14.addConstraint([
    Sketcher.Constraint("Coincident", 0, 2, 1, 1),
    Sketcher.Constraint("Coincident", 1, 2, 2, 1),
    Sketcher.Constraint("Coincident", 2, 2, 3, 1),
    Sketcher.Constraint("Coincident", 3, 2, 0, 1),
    Sketcher.Constraint("Horizontal", 0),
    Sketcher.Constraint("Vertical", 1),
    Sketcher.Constraint("Horizontal", 2),
    Sketcher.Constraint("Vertical", 3),
    Sketcher.Constraint("DistanceY", -1, 1, 0, 2, Q("55.738999 mm")),
    Sketcher.Constraint("DistanceX", 0, 2, 0, 1, Q("8.253245 mm")),
    Sketcher.Constraint("DistanceY", 1, 2, 1, 1, Q("9.677736 mm")),
    Sketcher.Constraint("DistanceX", -1, 1, 2, 2, Q("13.14002 mm")),
])
pocket7 = body.newObject("PartDesign::Pocket", "Pocket006")
pocket7.Profile = sketch14
pocket7.Length = 10

# Sketch on YZ plane
sketch15 = body.newObject("Sketcher::SketchObject", "Sketch014")
sketch15.AttachmentSupport = (doc.getObject("YZ_Plane"), [""])
sketch15.MapMode = "FlatFace"
sketch15.AttachmentOffset = App.Placement(App.Vector(0, 0, 18.4), App.Rotation())
sketch15.addGeometry([
    Part.LineSegment(App.Vector(13, 132, 0), App.Vector(5, 132, 0)),
    Part.LineSegment(App.Vector(5, 132, 0), App.Vector(5, -7, 0)),
    Part.LineSegment(App.Vector(5, -7, 0), App.Vector(13, -7, 0)),
    Part.LineSegment(App.Vector(13, -7, 0), App.Vector(13, 132, 0)),
], False)
sketch15.addConstraint([
    Sketcher.Constraint("Coincident", 0, 2, 1, 1),
    Sketcher.Constraint("Coincident", 1, 2, 2, 1),
    Sketcher.Constraint("Coincident", 2, 2, 3, 1),
    Sketcher.Constraint("Coincident", 3, 2, 0, 1),
    Sketcher.Constraint("Horizontal", 0),
    Sketcher.Constraint("Vertical", 1),
    Sketcher.Constraint("Horizontal", 2),
    Sketcher.Constraint("Vertical", 3),
    Sketcher.Constraint("DistanceY", -1, 1, 0, 2, Q("132 mm")),
    Sketcher.Constraint("DistanceY", 1, 2, 1, 1, Q("139.4507 mm")),
    Sketcher.Constraint("DistanceX", 0, 2, 0, 1, Q("7.594605 mm")),
    Sketcher.Constraint("DistanceX", -1, 1, 0, 2, Q("5.304512 mm")),
])
pocket8 = body.newObject("PartDesign::Pocket", "Pocket007")
pocket8.Profile = sketch15
pocket8.Length = 24
pocket8.Reversed = True

# Sketch on XZ plane
sketch16 = body.newObject("Sketcher::SketchObject", "Sketch015")
sketch16.AttachmentSupport = (doc.getObject("XZ_Plane"), [""])
sketch16.MapMode = "FlatFace"
sketch16.addGeometry([
    Part.LineSegment(App.Vector(-14, 86, 0), App.Vector(-14, 46, 0)),
    Part.LineSegment(App.Vector(-14, 46, 0), App.Vector(14, 46, 0)),
    Part.LineSegment(App.Vector(14, 46, 0), App.Vector(14, 86, 0)),
    Part.LineSegment(App.Vector(14, 86, 0), App.Vector(-14, 86, 0)),
], False)
sketch16.addConstraint([
    Sketcher.Constraint("Coincident", 0, 2, 1, 1),
    Sketcher.Constraint("Coincident", 1, 2, 2, 1),
    Sketcher.Constraint("Coincident", 2, 2, 3, 1),
    Sketcher.Constraint("Coincident", 3, 2, 0, 1),
    Sketcher.Constraint("Vertical", 0),
    Sketcher.Constraint("Horizontal", 1),
    Sketcher.Constraint("Vertical", 2),
    Sketcher.Constraint("Horizontal", 3),
    Sketcher.Constraint("DistanceX", 1, 1, 1, 2, Q("27.3 mm")),
    Sketcher.Constraint("DistanceX", 0, 2, -1, 1, Q("13.65 mm")),
    Sketcher.Constraint("DistanceY", 0, 2, 0, 1, Q("40.032666 mm")),
    Sketcher.Constraint("DistanceY", -1, 1, 0, 2, Q("45.983667 mm")),
])
pocket9 = body.newObject("PartDesign::Pocket", "Pocket008")
pocket9.Profile = sketch16
pocket9.Length = 22
pocket9.Reversed = True

# Sketch on XZ plane
sketch17 = body.newObject("Sketcher::SketchObject", "Sketch016")
sketch17.AttachmentSupport = (doc.getObject("XZ_Plane"), [""])
sketch17.MapMode = "FlatFace"
sketch17.AttachmentOffset = App.Placement(App.Vector(0, 0, -13.050041), App.Rotation())
sketch17.addGeometry(Part.Circle(App.Vector(19.1, 52.7, 0), App.Vector(0, 0, 1), 2.8), False)
sketch17.addConstraint([
    Sketcher.Constraint("Diameter", 0, Q("5.560701 mm")),
    Sketcher.Constraint("DistanceX", -1, 1, 0, 3, Q("19.13 mm")),
    Sketcher.Constraint("DistanceY", -1, 1, 0, 3, Q("52.682438 mm")),
])
pocket10 = body.newObject("PartDesign::Pocket", "Pocket009")
pocket10.Profile = sketch17
pocket10.Length = 33
pocket10.Reversed = True

# Sketch on XZ plane
sketch18 = body.newObject("Sketcher::SketchObject", "Sketch017")
sketch18.AttachmentSupport = (doc.getObject("XZ_Plane"), [""])
sketch18.MapMode = "FlatFace"
sketch18.AttachmentOffset = App.Placement(App.Vector(0, 0, -13.14002), App.Rotation())
sketch18.addGeometry([
    Part.LineSegment(App.Vector(-11, 54.7, 0), App.Vector(-30.6, 60.2, 0)),
    Part.LineSegment(App.Vector(-30.6, 60.2, 0), App.Vector(-30.6, 54.7, 0)),
    Part.LineSegment(App.Vector(-30.6, 54.7, 0), App.Vector(-11, 50.4, 0)),
    Part.LineSegment(App.Vector(-11, 50.4, 0), App.Vector(-11, 54.7, 0)),
], False)
sketch18.addConstraint([
    Sketcher.Constraint("Coincident", 0, 2, 1, 1),
    Sketcher.Constraint("Coincident", 1, 2, 2, 1),
    Sketcher.Constraint("Coincident", 2, 2, 3, 1),
    Sketcher.Constraint("Coincident", 3, 2, 0, 1),
    Sketcher.Constraint("Vertical", 1),
    Sketcher.Constraint("Vertical", 3),
    Sketcher.Constraint("DistanceY", 1, 2, 1, 1, Q("5.557202 mm")),
    Sketcher.Constraint("DistanceY", 3, 1, 3, 2, Q("4.33996 mm")),
    Sketcher.Constraint("DistanceY", -1, 1, 2, 2, Q("50.396102 mm")),
    Sketcher.Constraint("Distance", 0, Q("20.361241 mm")),
    Sketcher.Constraint("DistanceX", 0, 2, -1, 1, Q("30.574522 mm")),
    Sketcher.Constraint("DistanceX", 2, 2, -1, 1, Q("10.96266 mm")),
])
pocket11 = body.newObject("PartDesign::Pocket", "Pocket010")
pocket11.Profile = sketch18
pocket11.Length = 23
pocket11.Reversed = True

# Sketch on YZ plane
sketch19 = body.newObject("Sketcher::SketchObject", "Sketch018")
sketch19.AttachmentSupport = (doc.getObject("YZ_Plane"), [""])
sketch19.MapMode = "FlatFace"
sketch19.AttachmentOffset = App.Placement(App.Vector(0, 0, 18.4), App.Rotation())
sketch19.addGeometry([
    Part.LineSegment(App.Vector(18, 68, 0), App.Vector(-18, 68, 0)),
    Part.LineSegment(App.Vector(-18, 68, 0), App.Vector(-18, 64, 0)),
    Part.LineSegment(App.Vector(-18, 64, 0), App.Vector(18, 64, 0)),
    Part.LineSegment(App.Vector(18, 64, 0), App.Vector(18, 68, 0)),
], False)
sketch19.addConstraint([
    Sketcher.Constraint("Coincident", 0, 2, 1, 1),
    Sketcher.Constraint("Coincident", 1, 2, 2, 1),
    Sketcher.Constraint("Coincident", 2, 2, 3, 1),
    Sketcher.Constraint("Coincident", 3, 2, 0, 1),
    Sketcher.Constraint("Horizontal", 0),
    Sketcher.Constraint("Vertical", 1),
    Sketcher.Constraint("Horizontal", 2),
    Sketcher.Constraint("Vertical", 3),
    Sketcher.Constraint("DistanceX", 0, 2, 0, 1, Q("36 mm")),
    Sketcher.Constraint("DistanceY", 1, 2, 1, 1, Q("4 mm")),
    Sketcher.Constraint("DistanceX", 0, 2, -1, 1, Q("18 mm")),
    Sketcher.Constraint("DistanceY", -1, 1, 0, 2, Q("68 mm")),
])
pad8 = body.newObject("PartDesign::Pad", "Pad007")
pad8.Profile = sketch19
pad8.Length = 12

# Sketch on YZ plane
sketch20 = body.newObject("Sketcher::SketchObject", "Sketch019")
sketch20.AttachmentSupport = (doc.getObject("YZ_Plane"), [""])
sketch20.MapMode = "FlatFace"
sketch20.AttachmentOffset = App.Placement(App.Vector(0, 0, -18.4), App.Rotation())
sketch20.addGeometry([
    Part.LineSegment(App.Vector(18, 68, 0), App.Vector(-18, 68, 0)),
    Part.LineSegment(App.Vector(-18, 68, 0), App.Vector(-18, 72, 0)),
    Part.LineSegment(App.Vector(-18, 72, 0), App.Vector(18, 72, 0)),
    Part.LineSegment(App.Vector(18, 72, 0), App.Vector(18, 68, 0)),
], False)
sketch20.addConstraint([
    Sketcher.Constraint("Coincident", 0, 2, 1, 1),
    Sketcher.Constraint("Coincident", 1, 2, 2, 1),
    Sketcher.Constraint("Coincident", 2, 2, 3, 1),
    Sketcher.Constraint("Coincident", 3, 2, 0, 1),
    Sketcher.Constraint("Horizontal", 0),
    Sketcher.Constraint("Vertical", 1),
    Sketcher.Constraint("Horizontal", 2),
    Sketcher.Constraint("Vertical", 3),
    Sketcher.Constraint("DistanceX", 0, 2, 0, 1, Q("36 mm")),
    Sketcher.Constraint("DistanceY", 1, 1, 1, 2, Q("4 mm")),
    Sketcher.Constraint("DistanceX", 0, 2, -1, 1, Q("18 mm")),
    Sketcher.Constraint("DistanceY", -1, 1, 0, 2, Q("68 mm")),
])
pad9 = body.newObject("PartDesign::Pad", "Pad008")
pad9.Profile = sketch20
pad9.Length = 12
pad9.Reversed = True

# Sketch on XY plane
sketch21 = body.newObject("Sketcher::SketchObject", "Sketch020")
sketch21.AttachmentSupport = (doc.getObject("XY_Plane"), [""])
sketch21.MapMode = "FlatFace"
sketch21.AttachmentOffset = App.Placement(App.Vector(0, 0, 68), App.Rotation())
sketch21.addGeometry([
    Part.Circle(App.Vector(24, 10, 0), App.Vector(0, 0, 1), 1.7),
    Part.Circle(App.Vector(24, 2, 0), App.Vector(0, 0, 1), 1.7),
    Part.Circle(App.Vector(24, -6, 0), App.Vector(0, 0, 1), 1.7),
    Part.Circle(App.Vector(24, -14, 0), App.Vector(0, 0, 1), 1.7),
], False)
sketch21.addConstraint([
    Sketcher.Constraint("Equal", 0, 1),
    Sketcher.Constraint("Equal", 1, 2),
    Sketcher.Constraint("Equal", 2, 3),
    Sketcher.Constraint("Vertical", 0, 3, 1, 3),
    Sketcher.Constraint("Vertical", 1, 3, 2, 3),
    Sketcher.Constraint("Vertical", 2, 3, 3, 3),
    Sketcher.Constraint("Diameter", 0, Q("3.4 mm")),
    Sketcher.Constraint("DistanceY", -1, 1, 0, 3, Q("10 mm")),
    Sketcher.Constraint("DistanceY", -1, 1, 1, 3, Q("2 mm")),
    Sketcher.Constraint("DistanceY", 2, 3, -1, 1, Q("6 mm")),
    Sketcher.Constraint("DistanceY", 3, 3, -1, 1, Q("14 mm")),
    Sketcher.Constraint("DistanceX", -1, 1, 0, 3, Q("23.954865 mm")),
])
pocket12 = body.newObject("PartDesign::Pocket", "Pocket011")
pocket12.Profile = sketch21
pocket12.Length = 12

# Sketch on XY plane
sketch22 = body.newObject("Sketcher::SketchObject", "Sketch021")
sketch22.AttachmentSupport = (doc.getObject("XY_Plane"), [""])
sketch22.MapMode = "FlatFace"
sketch22.AttachmentOffset = App.Placement(App.Vector(0, 0, 72), App.Rotation())
sketch22.addGeometry([
    Part.Circle(App.Vector(-24.4, 10, 0), App.Vector(0, 0, 1), 1.7),
    Part.Circle(App.Vector(-24.4, 2, 0), App.Vector(0, 0, 1), 1.7),
    Part.Circle(App.Vector(-24.4, -6, 0), App.Vector(0, 0, 1), 1.7),
    Part.Circle(App.Vector(-24.4, -14, 0), App.Vector(0, 0, 1), 1.7),
], False)
sketch22.addConstraint([
    Sketcher.Constraint("Equal", 0, 1),
    Sketcher.Constraint("Equal", 1, 2),
    Sketcher.Constraint("Equal", 2, 3),
    Sketcher.Constraint("Vertical", 0, 3, 1, 3),
    Sketcher.Constraint("Vertical", 1, 3, 2, 3),
    Sketcher.Constraint("Vertical", 2, 3, 3, 3),
    Sketcher.Constraint("Diameter", 0, Q("3.4 mm")),
    Sketcher.Constraint("DistanceY", -1, 1, 0, 3, Q("10 mm")),
    Sketcher.Constraint("DistanceY", -1, 1, 1, 3, Q("2 mm")),
    Sketcher.Constraint("DistanceY", 2, 3, -1, 1, Q("6 mm")),
    Sketcher.Constraint("DistanceY", 3, 3, -1, 1, Q("14 mm")),
    Sketcher.Constraint("DistanceX", 0, 3, -1, 1, Q("24.4 mm")),
])
pocket13 = body.newObject("PartDesign::Pocket", "Pocket012")
pocket13.Profile = sketch22
pocket13.Length = 12

# Sketch on XZ plane
sketch23 = body.newObject("Sketcher::SketchObject", "Sketch022")
sketch23.AttachmentSupport = (doc.getObject("XZ_Plane"), [""])
sketch23.MapMode = "FlatFace"
sketch23.AttachmentOffset = App.Placement(App.Vector(0, 0, -18), App.Rotation())
sketch23.addGeometry([
    Part.LineSegment(App.Vector(-32, 108, 0), App.Vector(-32, 127, 0)),  # 0
    Part.LineSegment(App.Vector(-32, 127, 0), App.Vector(-18, 127, 0)),  # 1
    Part.LineSegment(App.Vector(-18, 127, 0), App.Vector(-18, 108, 0)),  # 2
    Part.LineSegment(App.Vector(-18, 108, 0), App.Vector(-32, 108, 0)),  # 3
    Part.LineSegment(App.Vector(-32, 5, 0), App.Vector(-32, 24, 0)),  # 4
    Part.LineSegment(App.Vector(-32, 24, 0), App.Vector(-18, 24, 0)),  # 5
    Part.LineSegment(App.Vector(-18, 24, 0), App.Vector(-18, 5, 0)),  # 6
    Part.LineSegment(App.Vector(-18, 5, 0), App.Vector(-32, 5, 0)),  # 7
    Part.LineSegment(App.Vector(18, 108, 0), App.Vector(18, 127, 0)),  # 8
    Part.LineSegment(App.Vector(18, 127, 0), App.Vector(32, 127, 0)),  # 9
    Part.LineSegment(App.Vector(32, 127, 0), App.Vector(32, 108, 0)),  # 10
    Part.LineSegment(App.Vector(32, 108, 0), App.Vector(18, 108, 0)),  # 11
    Part.LineSegment(App.Vector(18, 5, 0), App.Vector(18, 14, 0)),  # 12
    Part.LineSegment(App.Vector(18, 14, 0), App.Vector(30, 14, 0)),  # 13
    Part.LineSegment(App.Vector(30, 14, 0), App.Vector(30, 5, 0)),  # 14
    Part.LineSegment(App.Vector(30, 5, 0), App.Vector(18, 5, 0)),  # 15
], False)
sketch23.addConstraint([
    Sketcher.Constraint("Coincident", 0, 2, 1, 1),
    Sketcher.Constraint("Coincident", 1, 2, 2, 1),
    Sketcher.Constraint("Coincident", 2, 2, 3, 1),
    Sketcher.Constraint("Coincident", 3, 2, 0, 1),
    Sketcher.Constraint("Coincident", 4, 2, 5, 1),
    Sketcher.Constraint("Coincident", 5, 2, 6, 1),
    Sketcher.Constraint("Coincident", 6, 2, 7, 1),
    Sketcher.Constraint("Coincident", 7, 2, 4, 1),
    Sketcher.Constraint("Coincident", 8, 2, 9, 1),
    Sketcher.Constraint("Coincident", 9, 2, 10, 1),
    Sketcher.Constraint("Coincident", 10, 2, 11, 1),
    Sketcher.Constraint("Coincident", 11, 2, 8, 1),
    Sketcher.Constraint("Coincident", 12, 2, 13, 1),
    Sketcher.Constraint("Coincident", 13, 2, 14, 1),
    Sketcher.Constraint("Coincident", 14, 2, 15, 1),
    Sketcher.Constraint("Coincident", 15, 2, 12, 1),
    Sketcher.Constraint("Vertical", 0),
    Sketcher.Constraint("Horizontal", 1),
    Sketcher.Constraint("Vertical", 2),
    Sketcher.Constraint("Horizontal", 3),
    Sketcher.Constraint("Vertical", 4),
    Sketcher.Constraint("Horizontal", 5),
    Sketcher.Constraint("Vertical", 6),
    Sketcher.Constraint("Horizontal", 7),
    Sketcher.Constraint("Vertical", 8),
    Sketcher.Constraint("Horizontal", 9),
    Sketcher.Constraint("Vertical", 10),
    Sketcher.Constraint("Horizontal", 11),
    Sketcher.Constraint("Vertical", 12),
    Sketcher.Constraint("Horizontal", 13),
    Sketcher.Constraint("Vertical", 14),
    Sketcher.Constraint("Horizontal", 15),
    Sketcher.Constraint("Symmetric", 1, 2, 8, 2, -2),
    Sketcher.Constraint("Symmetric", 6, 2, 15, 2, -2),
    Sketcher.Constraint("Horizontal", 3, 2, 10, 2),
    Sketcher.Constraint("Vertical", 3, 2, 4, 2),
    Sketcher.Constraint("Vertical", 2, 2, 5, 2),
    Sketcher.Constraint("DistanceX", 1, 1, 1, 2, Q("14 mm")),
    Sketcher.Constraint("DistanceY", -1, 1, 2, 2, Q("108 mm")),
    Sketcher.Constraint("DistanceY", -1, 1, 4, 2, Q("24 mm")),
    Sketcher.Constraint("DistanceX", 0, 2, -1, 1, Q("32.4 mm")),
    Sketcher.Constraint("DistanceX", 9, 1, 9, 2, Q("13.10742 mm")),
    Sketcher.Constraint("DistanceX", 13, 1, 13, 2, Q("11.413971 mm")),
    Sketcher.Constraint("DistanceY", 4, 1, 4, 2, Q("18.872361 mm")),
    Sketcher.Constraint("DistanceY", 0, 1, 0, 2, Q("18.870065 mm")),
    Sketcher.Constraint("DistanceY", 12, 1, 12, 2, Q("8.373824 mm")),
])
pad10 = body.newObject("PartDesign::Pad", "Pad009")
pad10.Profile = sketch23
pad10.Length = 5

# Sketch on XZ plane
sketch24 = body.newObject("Sketcher::SketchObject", "Sketch023")
sketch24.AttachmentSupport = (doc.getObject("XZ_Plane"), [""])
sketch24.MapMode = "FlatFace"
sketch24.AttachmentOffset = App.Placement(App.Vector(0, 0, -18), App.Rotation())
sketch24.addGeometry([
    Part.Circle(App.Vector(-25, 121, 0), App.Vector(0, 0, 1), 1.7),
    Part.Circle(App.Vector(25, 121, 0), App.Vector(0, 0, 1), 1.7),
    Part.Circle(App.Vector(25, 11, 0), App.Vector(0, 0, 1), 1.7),
    Part.Circle(App.Vector(-25, 11, 0), App.Vector(0, 0, 1), 1.7),
], False)
sketch24.addConstraint([
    Sketcher.Constraint("Equal", 0, 1),
    Sketcher.Constraint("Equal", 1, 2),
    Sketcher.Constraint("Equal", 2, 3),
    Sketcher.Constraint("Symmetric", 0, 3, 1, 3, -2),
    Sketcher.Constraint("Symmetric", 2, 3, 3, 3, -2),
    Sketcher.Constraint("Vertical", 1, 3, 2, 3),
    Sketcher.Constraint("Diameter", 0, Q("3.4 mm")),
    Sketcher.Constraint("DistanceX", 0, 3, -1, 1, Q("25 mm")),
    Sketcher.Constraint("DistanceY", -1, 1, 0, 3, Q("121 mm")),
    Sketcher.Constraint("DistanceY", -1, 1, 2, 3, Q("11 mm")),
])
pocket14 = body.newObject("PartDesign::Pocket", "Pocket013")
pocket14.Profile = sketch24
pocket14.Length = 15
pocket14.Reversed = True
doc.recompute()

fillet2 = body.newObject("PartDesign::Fillet", "Fillet001")
fillet2.Base = (pocket14, edges_at(pocket14, [
    (-32.4, 15.5, 126.87),
    (-32.4, 15.5, 5.128),
    (31.507, 15.5, 126.87),
    (29.814, 15.5, 5.128),
]))
fillet2.Radius = 5

doc.recompute()
